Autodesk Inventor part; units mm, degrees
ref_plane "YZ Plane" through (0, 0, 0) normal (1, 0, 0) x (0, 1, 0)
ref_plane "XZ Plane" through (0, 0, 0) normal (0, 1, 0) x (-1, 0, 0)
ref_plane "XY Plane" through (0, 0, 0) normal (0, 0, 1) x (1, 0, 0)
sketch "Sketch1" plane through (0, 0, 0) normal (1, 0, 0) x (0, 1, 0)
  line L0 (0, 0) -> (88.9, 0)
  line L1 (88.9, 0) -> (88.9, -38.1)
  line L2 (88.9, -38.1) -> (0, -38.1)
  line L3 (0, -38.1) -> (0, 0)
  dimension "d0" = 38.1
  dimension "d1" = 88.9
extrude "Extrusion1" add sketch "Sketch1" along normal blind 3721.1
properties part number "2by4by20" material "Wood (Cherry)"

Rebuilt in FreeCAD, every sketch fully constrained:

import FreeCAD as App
import Part
import Sketcher
Q = App.Units.Quantity


def add_polygon(sketch, points):
    """Adds a closed chain of lines whose ends are joined by coincident constraints."""
    first, n = sketch.GeometryCount, len(points)
    for a, b in zip(points, points[1:] + points[:1]):
        sketch.addGeometry(Part.LineSegment(App.Vector(*a, 0), App.Vector(*b, 0)), False)
    for i in range(n):
        sketch.addConstraint(Sketcher.Constraint("Coincident", first + i, 2, first + (i + 1) % n, 1))

doc = App.newDocument("Part")
body = doc.addObject("PartDesign::Body", "Body")

# Sketch on YZ plane
sketch1 = body.newObject("Sketcher::SketchObject", "Sketch")
sketch1.AttachmentSupport = (doc.getObject("YZ_Plane"), [""])
sketch1.MapMode = "FlatFace"
add_polygon(sketch1, [(88.9, 0), (0, 0), (0, -38.1), (88.9, -38.1)])  # lines 0-3
sketch1.addConstraint(Sketcher.Constraint("Horizontal", 0))
sketch1.addConstraint(Sketcher.Constraint("Vertical", 1))
sketch1.addConstraint(Sketcher.Constraint("Horizontal", 2))
sketch1.addConstraint(Sketcher.Constraint("Vertical", 3))
sketch1.addConstraint(Sketcher.Constraint("Coincident", 0, 2, -1, 1))
sketch1.addConstraint(Sketcher.Constraint("DistanceX", 0, 2, 0, 1, Q("3.5 in")))
sketch1.addConstraint(Sketcher.Constraint("DistanceY", 1, 2, 1, 1, Q("1.5 in")))
pad1 = body.newObject("PartDesign::Pad", "Pad")
pad1.Profile = sketch1
pad1.Length = Q("146.5 in")

doc.recompute()
